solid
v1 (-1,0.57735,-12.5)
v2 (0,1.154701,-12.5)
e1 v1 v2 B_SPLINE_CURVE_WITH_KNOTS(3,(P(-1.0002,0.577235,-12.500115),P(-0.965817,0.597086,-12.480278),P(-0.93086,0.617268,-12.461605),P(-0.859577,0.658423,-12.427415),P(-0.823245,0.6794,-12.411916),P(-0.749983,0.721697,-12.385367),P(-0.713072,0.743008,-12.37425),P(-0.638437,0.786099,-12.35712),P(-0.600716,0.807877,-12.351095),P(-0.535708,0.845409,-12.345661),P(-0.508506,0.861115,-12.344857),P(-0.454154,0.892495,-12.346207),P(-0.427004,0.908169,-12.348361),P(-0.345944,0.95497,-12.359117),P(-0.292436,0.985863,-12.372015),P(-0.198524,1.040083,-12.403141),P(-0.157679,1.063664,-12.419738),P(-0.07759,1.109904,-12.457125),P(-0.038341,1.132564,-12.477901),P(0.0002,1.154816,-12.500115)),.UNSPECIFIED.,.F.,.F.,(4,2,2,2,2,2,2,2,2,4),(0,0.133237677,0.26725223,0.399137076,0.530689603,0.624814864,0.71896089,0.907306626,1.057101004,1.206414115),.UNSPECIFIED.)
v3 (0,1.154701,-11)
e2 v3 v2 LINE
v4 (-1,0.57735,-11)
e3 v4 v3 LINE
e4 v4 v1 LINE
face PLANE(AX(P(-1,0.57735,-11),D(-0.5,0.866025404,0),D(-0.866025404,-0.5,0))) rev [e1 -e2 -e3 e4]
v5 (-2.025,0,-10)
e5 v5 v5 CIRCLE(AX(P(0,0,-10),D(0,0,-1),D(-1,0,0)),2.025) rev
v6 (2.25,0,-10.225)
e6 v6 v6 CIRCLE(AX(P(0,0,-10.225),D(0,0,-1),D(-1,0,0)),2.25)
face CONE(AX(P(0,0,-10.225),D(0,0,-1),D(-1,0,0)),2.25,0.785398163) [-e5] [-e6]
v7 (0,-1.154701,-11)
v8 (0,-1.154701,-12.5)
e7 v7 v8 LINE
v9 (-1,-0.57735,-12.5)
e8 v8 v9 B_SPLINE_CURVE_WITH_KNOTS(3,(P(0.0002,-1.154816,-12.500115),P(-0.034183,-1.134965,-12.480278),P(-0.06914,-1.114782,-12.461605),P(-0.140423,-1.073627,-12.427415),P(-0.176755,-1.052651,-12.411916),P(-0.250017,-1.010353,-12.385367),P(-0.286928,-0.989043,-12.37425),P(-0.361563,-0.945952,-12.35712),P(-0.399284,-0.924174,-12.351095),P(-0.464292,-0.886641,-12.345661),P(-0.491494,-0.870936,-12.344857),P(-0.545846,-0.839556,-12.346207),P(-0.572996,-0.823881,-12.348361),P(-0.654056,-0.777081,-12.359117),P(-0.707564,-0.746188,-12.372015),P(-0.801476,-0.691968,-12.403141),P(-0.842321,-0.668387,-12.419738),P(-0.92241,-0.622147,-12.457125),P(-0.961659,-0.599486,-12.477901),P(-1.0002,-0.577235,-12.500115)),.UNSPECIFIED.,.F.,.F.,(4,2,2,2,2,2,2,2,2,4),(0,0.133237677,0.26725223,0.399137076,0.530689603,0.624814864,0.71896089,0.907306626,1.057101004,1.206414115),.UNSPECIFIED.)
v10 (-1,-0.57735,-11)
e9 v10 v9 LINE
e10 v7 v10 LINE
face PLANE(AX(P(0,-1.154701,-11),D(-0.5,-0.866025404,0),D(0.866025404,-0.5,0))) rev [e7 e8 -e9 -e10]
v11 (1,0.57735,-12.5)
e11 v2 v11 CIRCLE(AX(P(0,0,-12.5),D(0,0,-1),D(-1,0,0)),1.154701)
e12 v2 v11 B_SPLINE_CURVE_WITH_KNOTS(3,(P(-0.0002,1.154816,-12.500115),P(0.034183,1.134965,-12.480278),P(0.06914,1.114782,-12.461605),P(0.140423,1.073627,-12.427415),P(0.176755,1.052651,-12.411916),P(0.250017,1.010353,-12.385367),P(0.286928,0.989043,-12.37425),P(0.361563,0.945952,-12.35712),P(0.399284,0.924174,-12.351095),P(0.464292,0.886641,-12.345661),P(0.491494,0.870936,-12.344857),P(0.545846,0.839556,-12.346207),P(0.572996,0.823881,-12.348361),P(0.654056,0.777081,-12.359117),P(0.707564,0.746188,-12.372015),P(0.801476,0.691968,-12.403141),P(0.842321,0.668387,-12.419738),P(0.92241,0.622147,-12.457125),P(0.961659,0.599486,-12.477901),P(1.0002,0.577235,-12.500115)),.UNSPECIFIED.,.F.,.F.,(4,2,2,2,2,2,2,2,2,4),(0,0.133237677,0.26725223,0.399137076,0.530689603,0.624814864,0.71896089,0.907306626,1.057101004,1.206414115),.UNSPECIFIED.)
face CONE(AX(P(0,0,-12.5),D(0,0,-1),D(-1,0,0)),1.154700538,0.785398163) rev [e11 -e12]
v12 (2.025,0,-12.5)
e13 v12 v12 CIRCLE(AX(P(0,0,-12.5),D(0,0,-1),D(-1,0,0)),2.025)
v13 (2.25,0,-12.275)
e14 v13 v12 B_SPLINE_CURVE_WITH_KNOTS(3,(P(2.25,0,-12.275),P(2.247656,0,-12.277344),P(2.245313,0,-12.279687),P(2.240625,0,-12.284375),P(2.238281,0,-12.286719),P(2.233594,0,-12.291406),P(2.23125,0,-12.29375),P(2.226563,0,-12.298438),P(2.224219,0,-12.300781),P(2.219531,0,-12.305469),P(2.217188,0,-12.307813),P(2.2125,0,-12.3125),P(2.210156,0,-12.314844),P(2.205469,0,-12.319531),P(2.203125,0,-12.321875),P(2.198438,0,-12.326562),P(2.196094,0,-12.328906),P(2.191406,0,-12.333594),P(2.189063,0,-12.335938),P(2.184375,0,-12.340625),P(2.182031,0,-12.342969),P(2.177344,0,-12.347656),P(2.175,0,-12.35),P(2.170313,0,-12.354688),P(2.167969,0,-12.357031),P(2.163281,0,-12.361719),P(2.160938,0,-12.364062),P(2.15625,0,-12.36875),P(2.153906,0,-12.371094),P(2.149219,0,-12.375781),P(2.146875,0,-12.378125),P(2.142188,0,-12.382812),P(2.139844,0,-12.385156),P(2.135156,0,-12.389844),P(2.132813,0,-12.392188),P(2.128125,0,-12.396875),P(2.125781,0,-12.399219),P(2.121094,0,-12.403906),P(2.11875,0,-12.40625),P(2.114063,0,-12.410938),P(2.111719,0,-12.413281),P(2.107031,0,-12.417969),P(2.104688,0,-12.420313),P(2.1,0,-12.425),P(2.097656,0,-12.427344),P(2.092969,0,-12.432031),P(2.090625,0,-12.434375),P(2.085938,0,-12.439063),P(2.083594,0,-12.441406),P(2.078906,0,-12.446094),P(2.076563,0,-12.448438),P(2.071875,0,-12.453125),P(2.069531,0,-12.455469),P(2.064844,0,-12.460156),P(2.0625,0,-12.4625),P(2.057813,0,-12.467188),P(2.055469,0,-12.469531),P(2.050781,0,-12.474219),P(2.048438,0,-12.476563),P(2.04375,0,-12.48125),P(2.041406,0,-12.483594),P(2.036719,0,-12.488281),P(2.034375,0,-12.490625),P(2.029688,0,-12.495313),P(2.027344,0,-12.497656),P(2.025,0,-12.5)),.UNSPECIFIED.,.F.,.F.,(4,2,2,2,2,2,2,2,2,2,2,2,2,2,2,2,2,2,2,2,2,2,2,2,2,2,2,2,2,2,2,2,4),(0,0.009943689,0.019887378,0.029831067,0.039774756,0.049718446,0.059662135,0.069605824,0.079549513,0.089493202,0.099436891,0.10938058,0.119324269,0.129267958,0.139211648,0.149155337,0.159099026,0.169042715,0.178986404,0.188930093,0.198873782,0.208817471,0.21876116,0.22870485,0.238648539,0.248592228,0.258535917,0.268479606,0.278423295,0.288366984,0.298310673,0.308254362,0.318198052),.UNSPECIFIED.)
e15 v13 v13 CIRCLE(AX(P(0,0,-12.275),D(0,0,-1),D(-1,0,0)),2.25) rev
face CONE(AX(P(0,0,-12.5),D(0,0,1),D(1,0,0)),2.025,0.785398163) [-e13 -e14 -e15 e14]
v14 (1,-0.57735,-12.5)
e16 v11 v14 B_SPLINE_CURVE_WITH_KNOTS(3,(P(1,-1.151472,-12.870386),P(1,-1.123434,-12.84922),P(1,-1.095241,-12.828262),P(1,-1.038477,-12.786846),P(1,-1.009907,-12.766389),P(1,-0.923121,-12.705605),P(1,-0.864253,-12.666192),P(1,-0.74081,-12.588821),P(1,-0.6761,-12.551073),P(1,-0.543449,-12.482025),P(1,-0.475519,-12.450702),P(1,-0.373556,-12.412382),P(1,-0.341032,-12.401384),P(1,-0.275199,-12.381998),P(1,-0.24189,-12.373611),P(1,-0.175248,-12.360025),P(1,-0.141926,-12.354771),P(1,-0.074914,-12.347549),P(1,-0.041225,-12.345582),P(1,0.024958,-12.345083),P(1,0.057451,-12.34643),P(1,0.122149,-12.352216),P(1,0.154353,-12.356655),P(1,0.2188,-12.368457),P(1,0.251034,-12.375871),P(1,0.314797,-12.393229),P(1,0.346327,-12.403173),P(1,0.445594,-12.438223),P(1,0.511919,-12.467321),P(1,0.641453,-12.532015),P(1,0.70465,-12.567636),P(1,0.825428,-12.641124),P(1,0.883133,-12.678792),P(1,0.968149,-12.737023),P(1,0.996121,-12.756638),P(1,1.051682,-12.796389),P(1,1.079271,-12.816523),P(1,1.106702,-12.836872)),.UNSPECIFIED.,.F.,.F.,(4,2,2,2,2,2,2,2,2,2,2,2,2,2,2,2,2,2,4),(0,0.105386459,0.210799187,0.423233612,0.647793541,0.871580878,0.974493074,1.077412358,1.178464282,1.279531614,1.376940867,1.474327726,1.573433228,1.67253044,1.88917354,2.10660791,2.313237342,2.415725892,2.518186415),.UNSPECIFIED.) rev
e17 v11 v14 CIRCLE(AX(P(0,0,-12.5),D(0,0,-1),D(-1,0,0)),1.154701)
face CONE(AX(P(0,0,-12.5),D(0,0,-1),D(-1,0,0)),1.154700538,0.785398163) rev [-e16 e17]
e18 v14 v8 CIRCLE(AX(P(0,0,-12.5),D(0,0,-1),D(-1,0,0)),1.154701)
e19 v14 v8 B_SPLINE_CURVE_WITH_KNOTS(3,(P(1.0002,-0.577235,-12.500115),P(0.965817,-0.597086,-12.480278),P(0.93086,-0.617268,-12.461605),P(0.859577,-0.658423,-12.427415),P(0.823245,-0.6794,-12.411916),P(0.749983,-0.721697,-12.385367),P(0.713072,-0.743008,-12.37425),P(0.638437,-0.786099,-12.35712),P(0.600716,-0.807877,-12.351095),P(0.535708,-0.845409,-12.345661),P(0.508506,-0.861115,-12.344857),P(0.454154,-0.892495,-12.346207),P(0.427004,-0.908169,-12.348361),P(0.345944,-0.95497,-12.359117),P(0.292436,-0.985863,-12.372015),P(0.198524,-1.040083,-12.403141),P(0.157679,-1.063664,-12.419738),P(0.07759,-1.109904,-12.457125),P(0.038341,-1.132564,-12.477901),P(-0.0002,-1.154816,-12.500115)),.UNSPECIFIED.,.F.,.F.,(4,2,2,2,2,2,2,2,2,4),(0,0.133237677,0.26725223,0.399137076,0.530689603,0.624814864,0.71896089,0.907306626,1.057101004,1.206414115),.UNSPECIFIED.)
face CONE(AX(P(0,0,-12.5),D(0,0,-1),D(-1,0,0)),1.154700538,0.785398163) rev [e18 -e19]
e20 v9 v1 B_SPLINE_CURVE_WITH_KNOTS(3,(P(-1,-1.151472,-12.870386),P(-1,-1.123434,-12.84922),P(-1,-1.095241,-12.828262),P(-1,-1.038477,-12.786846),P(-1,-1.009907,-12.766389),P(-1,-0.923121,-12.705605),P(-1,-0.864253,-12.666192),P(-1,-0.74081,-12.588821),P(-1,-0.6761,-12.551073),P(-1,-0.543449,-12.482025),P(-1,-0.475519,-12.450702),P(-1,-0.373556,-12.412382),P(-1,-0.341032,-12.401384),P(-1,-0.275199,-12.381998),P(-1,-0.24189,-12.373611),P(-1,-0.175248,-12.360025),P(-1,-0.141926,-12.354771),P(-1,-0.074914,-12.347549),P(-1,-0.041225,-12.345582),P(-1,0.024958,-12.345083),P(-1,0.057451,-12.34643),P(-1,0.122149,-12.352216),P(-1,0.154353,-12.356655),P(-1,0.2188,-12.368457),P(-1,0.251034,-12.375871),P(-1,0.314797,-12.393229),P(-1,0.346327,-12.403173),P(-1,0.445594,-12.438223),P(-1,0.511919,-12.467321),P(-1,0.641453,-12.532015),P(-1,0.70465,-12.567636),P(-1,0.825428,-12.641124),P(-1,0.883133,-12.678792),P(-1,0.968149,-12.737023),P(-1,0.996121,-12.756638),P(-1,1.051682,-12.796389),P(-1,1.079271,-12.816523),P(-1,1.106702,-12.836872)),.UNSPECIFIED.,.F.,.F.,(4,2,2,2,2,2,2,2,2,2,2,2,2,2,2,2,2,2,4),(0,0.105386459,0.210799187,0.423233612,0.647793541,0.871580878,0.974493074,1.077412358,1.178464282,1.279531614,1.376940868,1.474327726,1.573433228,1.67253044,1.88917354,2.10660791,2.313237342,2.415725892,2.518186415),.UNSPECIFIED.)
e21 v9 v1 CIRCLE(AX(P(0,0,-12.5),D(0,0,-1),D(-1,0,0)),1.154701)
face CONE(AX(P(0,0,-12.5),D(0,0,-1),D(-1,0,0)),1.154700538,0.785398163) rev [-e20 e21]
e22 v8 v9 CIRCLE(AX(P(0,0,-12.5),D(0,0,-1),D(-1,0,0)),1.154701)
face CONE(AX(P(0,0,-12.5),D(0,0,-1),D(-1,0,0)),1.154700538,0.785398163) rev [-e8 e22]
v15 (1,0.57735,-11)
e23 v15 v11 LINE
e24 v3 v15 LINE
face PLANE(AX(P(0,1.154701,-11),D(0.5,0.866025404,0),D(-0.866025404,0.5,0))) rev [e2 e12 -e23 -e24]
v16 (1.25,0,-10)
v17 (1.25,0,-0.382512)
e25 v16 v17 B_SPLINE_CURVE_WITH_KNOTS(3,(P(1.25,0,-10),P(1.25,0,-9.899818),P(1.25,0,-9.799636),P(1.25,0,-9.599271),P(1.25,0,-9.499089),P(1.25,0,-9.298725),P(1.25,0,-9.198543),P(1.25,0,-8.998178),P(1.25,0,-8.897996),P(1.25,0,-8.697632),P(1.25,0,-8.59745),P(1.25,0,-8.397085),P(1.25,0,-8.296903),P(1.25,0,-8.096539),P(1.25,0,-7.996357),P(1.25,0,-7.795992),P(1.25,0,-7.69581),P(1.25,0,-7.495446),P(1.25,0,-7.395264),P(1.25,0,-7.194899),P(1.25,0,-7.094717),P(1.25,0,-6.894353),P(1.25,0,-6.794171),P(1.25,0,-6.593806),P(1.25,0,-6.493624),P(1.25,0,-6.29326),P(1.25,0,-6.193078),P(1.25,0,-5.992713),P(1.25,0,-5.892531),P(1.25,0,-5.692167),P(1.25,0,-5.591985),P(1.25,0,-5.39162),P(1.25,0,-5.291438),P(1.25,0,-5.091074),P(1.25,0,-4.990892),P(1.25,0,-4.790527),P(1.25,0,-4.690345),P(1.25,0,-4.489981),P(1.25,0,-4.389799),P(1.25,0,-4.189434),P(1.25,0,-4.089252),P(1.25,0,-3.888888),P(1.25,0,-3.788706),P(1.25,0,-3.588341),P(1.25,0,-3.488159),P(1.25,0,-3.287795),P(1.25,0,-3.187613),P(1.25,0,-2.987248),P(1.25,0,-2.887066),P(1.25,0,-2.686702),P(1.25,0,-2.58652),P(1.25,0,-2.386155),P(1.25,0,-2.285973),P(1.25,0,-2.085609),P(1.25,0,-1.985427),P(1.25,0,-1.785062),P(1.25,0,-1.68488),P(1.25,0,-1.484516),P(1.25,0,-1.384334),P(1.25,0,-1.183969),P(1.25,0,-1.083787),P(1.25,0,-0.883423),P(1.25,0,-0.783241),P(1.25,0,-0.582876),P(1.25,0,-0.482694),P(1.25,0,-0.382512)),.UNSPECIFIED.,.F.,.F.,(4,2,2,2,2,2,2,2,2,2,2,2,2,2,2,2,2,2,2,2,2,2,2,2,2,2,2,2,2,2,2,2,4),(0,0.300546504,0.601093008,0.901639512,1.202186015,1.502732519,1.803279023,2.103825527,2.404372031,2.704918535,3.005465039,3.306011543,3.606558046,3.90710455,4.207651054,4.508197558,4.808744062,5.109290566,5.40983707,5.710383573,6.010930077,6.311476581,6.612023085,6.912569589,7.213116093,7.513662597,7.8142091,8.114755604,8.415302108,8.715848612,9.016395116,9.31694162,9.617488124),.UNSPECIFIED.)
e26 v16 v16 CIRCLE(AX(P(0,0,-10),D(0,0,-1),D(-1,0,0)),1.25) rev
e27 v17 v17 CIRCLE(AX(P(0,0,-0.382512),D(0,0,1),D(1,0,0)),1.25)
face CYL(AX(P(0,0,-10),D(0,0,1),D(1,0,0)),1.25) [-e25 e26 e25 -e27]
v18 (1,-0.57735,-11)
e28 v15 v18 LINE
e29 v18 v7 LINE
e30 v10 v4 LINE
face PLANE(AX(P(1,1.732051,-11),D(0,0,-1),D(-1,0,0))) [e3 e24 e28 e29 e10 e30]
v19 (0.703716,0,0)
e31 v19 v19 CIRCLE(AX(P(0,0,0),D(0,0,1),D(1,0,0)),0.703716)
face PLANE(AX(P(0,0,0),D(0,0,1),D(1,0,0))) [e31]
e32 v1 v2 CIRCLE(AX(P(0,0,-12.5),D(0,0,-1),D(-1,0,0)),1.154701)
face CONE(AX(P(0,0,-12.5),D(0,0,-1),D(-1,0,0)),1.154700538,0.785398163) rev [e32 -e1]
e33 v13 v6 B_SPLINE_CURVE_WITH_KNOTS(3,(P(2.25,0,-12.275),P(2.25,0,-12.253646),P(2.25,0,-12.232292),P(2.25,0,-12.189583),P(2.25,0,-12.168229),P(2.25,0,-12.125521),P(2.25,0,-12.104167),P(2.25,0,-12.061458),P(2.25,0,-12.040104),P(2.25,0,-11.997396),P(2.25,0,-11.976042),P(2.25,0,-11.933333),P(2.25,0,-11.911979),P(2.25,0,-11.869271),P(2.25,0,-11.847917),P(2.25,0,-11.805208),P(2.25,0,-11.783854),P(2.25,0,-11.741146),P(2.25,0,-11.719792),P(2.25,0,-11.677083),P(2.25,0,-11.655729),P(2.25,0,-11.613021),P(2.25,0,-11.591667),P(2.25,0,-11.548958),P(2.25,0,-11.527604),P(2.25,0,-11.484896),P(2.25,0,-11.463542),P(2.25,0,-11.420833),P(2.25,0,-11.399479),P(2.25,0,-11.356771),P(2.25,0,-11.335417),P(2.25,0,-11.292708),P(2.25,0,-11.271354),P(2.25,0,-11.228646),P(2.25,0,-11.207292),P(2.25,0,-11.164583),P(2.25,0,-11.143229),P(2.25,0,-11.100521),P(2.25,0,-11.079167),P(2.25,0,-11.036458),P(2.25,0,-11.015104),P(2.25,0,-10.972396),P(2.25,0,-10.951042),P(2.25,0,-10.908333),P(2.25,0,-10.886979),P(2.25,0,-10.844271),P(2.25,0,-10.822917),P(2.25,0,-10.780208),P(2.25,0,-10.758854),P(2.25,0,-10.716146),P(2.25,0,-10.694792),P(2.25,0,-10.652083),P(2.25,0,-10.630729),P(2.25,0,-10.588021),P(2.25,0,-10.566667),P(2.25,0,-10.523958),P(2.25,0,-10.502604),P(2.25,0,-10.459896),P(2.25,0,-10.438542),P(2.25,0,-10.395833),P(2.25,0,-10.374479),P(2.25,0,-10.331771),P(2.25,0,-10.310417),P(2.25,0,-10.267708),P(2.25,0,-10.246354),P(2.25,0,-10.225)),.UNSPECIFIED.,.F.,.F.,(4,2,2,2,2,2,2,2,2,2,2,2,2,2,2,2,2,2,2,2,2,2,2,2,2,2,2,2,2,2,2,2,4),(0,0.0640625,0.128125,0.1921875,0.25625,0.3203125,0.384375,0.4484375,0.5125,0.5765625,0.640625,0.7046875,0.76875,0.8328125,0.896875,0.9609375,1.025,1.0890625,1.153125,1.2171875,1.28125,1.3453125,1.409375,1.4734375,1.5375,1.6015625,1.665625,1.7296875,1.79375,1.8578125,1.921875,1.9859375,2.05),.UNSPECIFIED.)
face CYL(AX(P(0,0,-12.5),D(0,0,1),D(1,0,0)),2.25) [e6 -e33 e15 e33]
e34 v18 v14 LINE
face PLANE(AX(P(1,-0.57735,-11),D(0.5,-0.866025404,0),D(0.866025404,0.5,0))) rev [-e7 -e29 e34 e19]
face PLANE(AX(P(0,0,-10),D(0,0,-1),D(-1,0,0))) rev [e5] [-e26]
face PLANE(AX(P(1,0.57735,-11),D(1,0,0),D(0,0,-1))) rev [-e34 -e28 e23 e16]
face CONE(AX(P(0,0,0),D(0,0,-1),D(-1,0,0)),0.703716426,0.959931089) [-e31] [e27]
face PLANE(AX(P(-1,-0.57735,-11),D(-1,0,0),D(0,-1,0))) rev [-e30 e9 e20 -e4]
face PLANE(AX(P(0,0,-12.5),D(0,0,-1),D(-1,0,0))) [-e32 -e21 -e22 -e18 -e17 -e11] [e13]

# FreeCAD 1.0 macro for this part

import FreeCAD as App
import Part
import Sketcher
Q = App.Units.Quantity


def edges_at(feature, points):
    """Names of the edges that pass closest to the given points."""
    edges = feature.Shape.Edges
    near = lambda p: min(range(len(edges)), key=lambda i: edges[i].distToShape(Part.Vertex(*p))[0])
    return sorted({f"Edge{near(p) + 1}" for p in points})


def add_polygon(sketch, points):
    """Adds a closed chain of lines whose ends are joined by coincident constraints."""
    first, n = sketch.GeometryCount, len(points)
    for a, b in zip(points, points[1:] + points[:1]):
        sketch.addGeometry(Part.LineSegment(App.Vector(*a, 0), App.Vector(*b, 0)), False)
    for i in range(n):
        sketch.addConstraint(Sketcher.Constraint("Coincident", first + i, 2, first + (i + 1) % n, 1))

doc = App.newDocument("Part")
params = doc.addObject("Spreadsheet::Sheet", "Params")
for row, (alias, value) in enumerate([
    ("sketch1_diameter", "2.5 mm"),
    ("pad1_length", "10 mm"),
    ("groove_angle", "360 deg"),
    ("sketch3_diameter", "4.5 mm"),
    ("pad2_length", "2.5 mm"),
    ("pocket1_length", "1.5 mm"),
    ("groove2_angle", "360 deg"),
    ("chamfer_size", "0.225 mm"),
], start=1):
    params.set(f"A{row}", alias)
    params.set(f"B{row}", "=" + value)
    params.setAlias(f"B{row}", alias)

body = doc.addObject("PartDesign::Body", "Body")

sketch1 = body.newObject("Sketcher::SketchObject", "Sketch")
sketch1.AttachmentSupport = (doc.getObject("XY_Plane"), [""])
sketch1.MapMode = "FlatFace"
sketch1.addGeometry(Part.Circle(App.Vector(0, 0, 0), App.Vector(0, 0, 1), 1.2), False)
sketch1.addConstraint(Sketcher.Constraint("Coincident", 0, 3, -1, 1))
sketch1.addConstraint(Sketcher.Constraint("Diameter", 0, 2.5))
sketch1.setExpression("Constraints[1]", "Params.sketch1_diameter")
pad1 = body.newObject("PartDesign::Pad", "Pad")
pad1.Profile = sketch1
pad1.setExpression("Length", "Params.pad1_length")
pad1.Reversed = True

sketch2 = body.newObject("Sketcher::SketchObject", "Sketch001")
sketch2.AttachmentSupport = (doc.getObject("YZ_Plane"), [""])
sketch2.MapMode = "FlatFace"
add_polygon(sketch2, [(0.7, 0), (1.25, -0.38), (1.25, 0)])
sketch2.addConstraint(Sketcher.Constraint("Vertical", 1))
sketch2.addConstraint(Sketcher.Constraint("Horizontal", 2))
sketch2.addConstraint(Sketcher.Constraint("PointOnObject", 1, 2, -1))
sketch2.addConstraint(Sketcher.Constraint("Angle", 0, Q("-35 deg")))
sketch2.addConstraint(Sketcher.Constraint("DistanceX", -1, 1, 0, 2, 1.25))
sketch2.addConstraint(Sketcher.Constraint("DistanceY", 1, 1, 1, 2, 0.382512))
groove = body.newObject("PartDesign::Groove", "Groove")
groove.Profile = sketch2
groove.ReferenceAxis = (sketch2, ["V_Axis"])
groove.setExpression("Angle", "Params.groove_angle")

sketch3 = body.newObject("Sketcher::SketchObject", "Sketch002")
sketch3.AttachmentSupport = (doc.getObject("XY_Plane"), [""])
sketch3.MapMode = "FlatFace"
sketch3.AttachmentOffset = App.Placement(App.Vector(0, 0, -10), App.Rotation())
sketch3.addGeometry(Part.Circle(App.Vector(0, 0, 0), App.Vector(0, 0, 1), 2.2), False)
sketch3.addConstraint(Sketcher.Constraint("Coincident", 0, 3, -1, 1))
sketch3.addConstraint(Sketcher.Constraint("Diameter", 0, 4.5))
sketch3.setExpression("Constraints[1]", "Params.sketch3_diameter")
pad2 = body.newObject("PartDesign::Pad", "Pad001")
pad2.Profile = sketch3
pad2.setExpression("Length", "Params.pad2_length")
pad2.Reversed = True

sketch4 = body.newObject("Sketcher::SketchObject", "Sketch003")
sketch4.AttachmentSupport = (doc.getObject("XY_Plane"), [""])
sketch4.MapMode = "FlatFace"
sketch4.AttachmentOffset = App.Placement(App.Vector(0, 0, -12.5), App.Rotation())
add_polygon(sketch4, [(0, 1.2), (1, 0.6), (1, -0.6), (0, -1.2), (-1, -0.6), (-1, 0.6)])
sketch4.addConstraint(Sketcher.Constraint("Vertical", 1))
sketch4.addConstraint(Sketcher.Constraint("Vertical", 4))
sketch4.addConstraint(Sketcher.Constraint("Symmetric", 0, 2, 3, 2, -1, 1))
sketch4.addConstraint(Sketcher.Constraint("Symmetric", 2, 2, 5, 2, -1, 1))
sketch4.addConstraint(Sketcher.Constraint("PointOnObject", 2, 2, -2))
sketch4.addConstraint(Sketcher.Constraint("Parallel", 2, 5))
sketch4.addConstraint(Sketcher.Constraint("Horizontal", 1, 2, 3, 2))
sketch4.addConstraint(Sketcher.Constraint("Angle", 0, Q("-30 deg")))
sketch4.addConstraint(Sketcher.Constraint("DistanceX", -1, 1, 0, 2, 1.0))
sketch4.addConstraint(Sketcher.Constraint("DistanceY", 1, 2, 1, 1, 1.154701))
pocket1 = body.newObject("PartDesign::Pocket", "Pocket")
pocket1.Profile = sketch4
pocket1.setExpression("Length", "Params.pocket1_length")
pocket1.Reversed = True

sketch5 = body.newObject("Sketcher::SketchObject", "Sketch004")
sketch5.AttachmentSupport = (doc.getObject("YZ_Plane"), [""])
sketch5.MapMode = "FlatFace"
add_polygon(sketch5, [(0, -12.5), (1.2, -12.5), (0, -11.3)])
sketch5.addConstraint(Sketcher.Constraint("Horizontal", 0))
sketch5.addConstraint(Sketcher.Constraint("Vertical", 2))
sketch5.addConstraint(Sketcher.Constraint("PointOnObject", 1, 2, -2))
sketch5.addConstraint(Sketcher.Constraint("Equal", 0, 2))
sketch5.addConstraint(Sketcher.Constraint("DistanceY", 0, 2, -1, 1, 12.5))
sketch5.addConstraint(Sketcher.Constraint("DistanceX", 0, 1, 0, 2, 1.154701))
groove2 = body.newObject("PartDesign::Groove", "Groove001")
groove2.Profile = sketch5
groove2.ReferenceAxis = (sketch5, ["V_Axis"])
groove2.setExpression("Angle", "Params.groove2_angle")
doc.recompute()

chamfer = body.newObject("PartDesign::Chamfer", "Chamfer")
chamfer.Base = (groove2, edges_at(groove2, [(-2.25, 0, -10), (-2.25, 0, -12.5)]))
chamfer.setExpression("Size", "Params.chamfer_size")

doc.recompute()
